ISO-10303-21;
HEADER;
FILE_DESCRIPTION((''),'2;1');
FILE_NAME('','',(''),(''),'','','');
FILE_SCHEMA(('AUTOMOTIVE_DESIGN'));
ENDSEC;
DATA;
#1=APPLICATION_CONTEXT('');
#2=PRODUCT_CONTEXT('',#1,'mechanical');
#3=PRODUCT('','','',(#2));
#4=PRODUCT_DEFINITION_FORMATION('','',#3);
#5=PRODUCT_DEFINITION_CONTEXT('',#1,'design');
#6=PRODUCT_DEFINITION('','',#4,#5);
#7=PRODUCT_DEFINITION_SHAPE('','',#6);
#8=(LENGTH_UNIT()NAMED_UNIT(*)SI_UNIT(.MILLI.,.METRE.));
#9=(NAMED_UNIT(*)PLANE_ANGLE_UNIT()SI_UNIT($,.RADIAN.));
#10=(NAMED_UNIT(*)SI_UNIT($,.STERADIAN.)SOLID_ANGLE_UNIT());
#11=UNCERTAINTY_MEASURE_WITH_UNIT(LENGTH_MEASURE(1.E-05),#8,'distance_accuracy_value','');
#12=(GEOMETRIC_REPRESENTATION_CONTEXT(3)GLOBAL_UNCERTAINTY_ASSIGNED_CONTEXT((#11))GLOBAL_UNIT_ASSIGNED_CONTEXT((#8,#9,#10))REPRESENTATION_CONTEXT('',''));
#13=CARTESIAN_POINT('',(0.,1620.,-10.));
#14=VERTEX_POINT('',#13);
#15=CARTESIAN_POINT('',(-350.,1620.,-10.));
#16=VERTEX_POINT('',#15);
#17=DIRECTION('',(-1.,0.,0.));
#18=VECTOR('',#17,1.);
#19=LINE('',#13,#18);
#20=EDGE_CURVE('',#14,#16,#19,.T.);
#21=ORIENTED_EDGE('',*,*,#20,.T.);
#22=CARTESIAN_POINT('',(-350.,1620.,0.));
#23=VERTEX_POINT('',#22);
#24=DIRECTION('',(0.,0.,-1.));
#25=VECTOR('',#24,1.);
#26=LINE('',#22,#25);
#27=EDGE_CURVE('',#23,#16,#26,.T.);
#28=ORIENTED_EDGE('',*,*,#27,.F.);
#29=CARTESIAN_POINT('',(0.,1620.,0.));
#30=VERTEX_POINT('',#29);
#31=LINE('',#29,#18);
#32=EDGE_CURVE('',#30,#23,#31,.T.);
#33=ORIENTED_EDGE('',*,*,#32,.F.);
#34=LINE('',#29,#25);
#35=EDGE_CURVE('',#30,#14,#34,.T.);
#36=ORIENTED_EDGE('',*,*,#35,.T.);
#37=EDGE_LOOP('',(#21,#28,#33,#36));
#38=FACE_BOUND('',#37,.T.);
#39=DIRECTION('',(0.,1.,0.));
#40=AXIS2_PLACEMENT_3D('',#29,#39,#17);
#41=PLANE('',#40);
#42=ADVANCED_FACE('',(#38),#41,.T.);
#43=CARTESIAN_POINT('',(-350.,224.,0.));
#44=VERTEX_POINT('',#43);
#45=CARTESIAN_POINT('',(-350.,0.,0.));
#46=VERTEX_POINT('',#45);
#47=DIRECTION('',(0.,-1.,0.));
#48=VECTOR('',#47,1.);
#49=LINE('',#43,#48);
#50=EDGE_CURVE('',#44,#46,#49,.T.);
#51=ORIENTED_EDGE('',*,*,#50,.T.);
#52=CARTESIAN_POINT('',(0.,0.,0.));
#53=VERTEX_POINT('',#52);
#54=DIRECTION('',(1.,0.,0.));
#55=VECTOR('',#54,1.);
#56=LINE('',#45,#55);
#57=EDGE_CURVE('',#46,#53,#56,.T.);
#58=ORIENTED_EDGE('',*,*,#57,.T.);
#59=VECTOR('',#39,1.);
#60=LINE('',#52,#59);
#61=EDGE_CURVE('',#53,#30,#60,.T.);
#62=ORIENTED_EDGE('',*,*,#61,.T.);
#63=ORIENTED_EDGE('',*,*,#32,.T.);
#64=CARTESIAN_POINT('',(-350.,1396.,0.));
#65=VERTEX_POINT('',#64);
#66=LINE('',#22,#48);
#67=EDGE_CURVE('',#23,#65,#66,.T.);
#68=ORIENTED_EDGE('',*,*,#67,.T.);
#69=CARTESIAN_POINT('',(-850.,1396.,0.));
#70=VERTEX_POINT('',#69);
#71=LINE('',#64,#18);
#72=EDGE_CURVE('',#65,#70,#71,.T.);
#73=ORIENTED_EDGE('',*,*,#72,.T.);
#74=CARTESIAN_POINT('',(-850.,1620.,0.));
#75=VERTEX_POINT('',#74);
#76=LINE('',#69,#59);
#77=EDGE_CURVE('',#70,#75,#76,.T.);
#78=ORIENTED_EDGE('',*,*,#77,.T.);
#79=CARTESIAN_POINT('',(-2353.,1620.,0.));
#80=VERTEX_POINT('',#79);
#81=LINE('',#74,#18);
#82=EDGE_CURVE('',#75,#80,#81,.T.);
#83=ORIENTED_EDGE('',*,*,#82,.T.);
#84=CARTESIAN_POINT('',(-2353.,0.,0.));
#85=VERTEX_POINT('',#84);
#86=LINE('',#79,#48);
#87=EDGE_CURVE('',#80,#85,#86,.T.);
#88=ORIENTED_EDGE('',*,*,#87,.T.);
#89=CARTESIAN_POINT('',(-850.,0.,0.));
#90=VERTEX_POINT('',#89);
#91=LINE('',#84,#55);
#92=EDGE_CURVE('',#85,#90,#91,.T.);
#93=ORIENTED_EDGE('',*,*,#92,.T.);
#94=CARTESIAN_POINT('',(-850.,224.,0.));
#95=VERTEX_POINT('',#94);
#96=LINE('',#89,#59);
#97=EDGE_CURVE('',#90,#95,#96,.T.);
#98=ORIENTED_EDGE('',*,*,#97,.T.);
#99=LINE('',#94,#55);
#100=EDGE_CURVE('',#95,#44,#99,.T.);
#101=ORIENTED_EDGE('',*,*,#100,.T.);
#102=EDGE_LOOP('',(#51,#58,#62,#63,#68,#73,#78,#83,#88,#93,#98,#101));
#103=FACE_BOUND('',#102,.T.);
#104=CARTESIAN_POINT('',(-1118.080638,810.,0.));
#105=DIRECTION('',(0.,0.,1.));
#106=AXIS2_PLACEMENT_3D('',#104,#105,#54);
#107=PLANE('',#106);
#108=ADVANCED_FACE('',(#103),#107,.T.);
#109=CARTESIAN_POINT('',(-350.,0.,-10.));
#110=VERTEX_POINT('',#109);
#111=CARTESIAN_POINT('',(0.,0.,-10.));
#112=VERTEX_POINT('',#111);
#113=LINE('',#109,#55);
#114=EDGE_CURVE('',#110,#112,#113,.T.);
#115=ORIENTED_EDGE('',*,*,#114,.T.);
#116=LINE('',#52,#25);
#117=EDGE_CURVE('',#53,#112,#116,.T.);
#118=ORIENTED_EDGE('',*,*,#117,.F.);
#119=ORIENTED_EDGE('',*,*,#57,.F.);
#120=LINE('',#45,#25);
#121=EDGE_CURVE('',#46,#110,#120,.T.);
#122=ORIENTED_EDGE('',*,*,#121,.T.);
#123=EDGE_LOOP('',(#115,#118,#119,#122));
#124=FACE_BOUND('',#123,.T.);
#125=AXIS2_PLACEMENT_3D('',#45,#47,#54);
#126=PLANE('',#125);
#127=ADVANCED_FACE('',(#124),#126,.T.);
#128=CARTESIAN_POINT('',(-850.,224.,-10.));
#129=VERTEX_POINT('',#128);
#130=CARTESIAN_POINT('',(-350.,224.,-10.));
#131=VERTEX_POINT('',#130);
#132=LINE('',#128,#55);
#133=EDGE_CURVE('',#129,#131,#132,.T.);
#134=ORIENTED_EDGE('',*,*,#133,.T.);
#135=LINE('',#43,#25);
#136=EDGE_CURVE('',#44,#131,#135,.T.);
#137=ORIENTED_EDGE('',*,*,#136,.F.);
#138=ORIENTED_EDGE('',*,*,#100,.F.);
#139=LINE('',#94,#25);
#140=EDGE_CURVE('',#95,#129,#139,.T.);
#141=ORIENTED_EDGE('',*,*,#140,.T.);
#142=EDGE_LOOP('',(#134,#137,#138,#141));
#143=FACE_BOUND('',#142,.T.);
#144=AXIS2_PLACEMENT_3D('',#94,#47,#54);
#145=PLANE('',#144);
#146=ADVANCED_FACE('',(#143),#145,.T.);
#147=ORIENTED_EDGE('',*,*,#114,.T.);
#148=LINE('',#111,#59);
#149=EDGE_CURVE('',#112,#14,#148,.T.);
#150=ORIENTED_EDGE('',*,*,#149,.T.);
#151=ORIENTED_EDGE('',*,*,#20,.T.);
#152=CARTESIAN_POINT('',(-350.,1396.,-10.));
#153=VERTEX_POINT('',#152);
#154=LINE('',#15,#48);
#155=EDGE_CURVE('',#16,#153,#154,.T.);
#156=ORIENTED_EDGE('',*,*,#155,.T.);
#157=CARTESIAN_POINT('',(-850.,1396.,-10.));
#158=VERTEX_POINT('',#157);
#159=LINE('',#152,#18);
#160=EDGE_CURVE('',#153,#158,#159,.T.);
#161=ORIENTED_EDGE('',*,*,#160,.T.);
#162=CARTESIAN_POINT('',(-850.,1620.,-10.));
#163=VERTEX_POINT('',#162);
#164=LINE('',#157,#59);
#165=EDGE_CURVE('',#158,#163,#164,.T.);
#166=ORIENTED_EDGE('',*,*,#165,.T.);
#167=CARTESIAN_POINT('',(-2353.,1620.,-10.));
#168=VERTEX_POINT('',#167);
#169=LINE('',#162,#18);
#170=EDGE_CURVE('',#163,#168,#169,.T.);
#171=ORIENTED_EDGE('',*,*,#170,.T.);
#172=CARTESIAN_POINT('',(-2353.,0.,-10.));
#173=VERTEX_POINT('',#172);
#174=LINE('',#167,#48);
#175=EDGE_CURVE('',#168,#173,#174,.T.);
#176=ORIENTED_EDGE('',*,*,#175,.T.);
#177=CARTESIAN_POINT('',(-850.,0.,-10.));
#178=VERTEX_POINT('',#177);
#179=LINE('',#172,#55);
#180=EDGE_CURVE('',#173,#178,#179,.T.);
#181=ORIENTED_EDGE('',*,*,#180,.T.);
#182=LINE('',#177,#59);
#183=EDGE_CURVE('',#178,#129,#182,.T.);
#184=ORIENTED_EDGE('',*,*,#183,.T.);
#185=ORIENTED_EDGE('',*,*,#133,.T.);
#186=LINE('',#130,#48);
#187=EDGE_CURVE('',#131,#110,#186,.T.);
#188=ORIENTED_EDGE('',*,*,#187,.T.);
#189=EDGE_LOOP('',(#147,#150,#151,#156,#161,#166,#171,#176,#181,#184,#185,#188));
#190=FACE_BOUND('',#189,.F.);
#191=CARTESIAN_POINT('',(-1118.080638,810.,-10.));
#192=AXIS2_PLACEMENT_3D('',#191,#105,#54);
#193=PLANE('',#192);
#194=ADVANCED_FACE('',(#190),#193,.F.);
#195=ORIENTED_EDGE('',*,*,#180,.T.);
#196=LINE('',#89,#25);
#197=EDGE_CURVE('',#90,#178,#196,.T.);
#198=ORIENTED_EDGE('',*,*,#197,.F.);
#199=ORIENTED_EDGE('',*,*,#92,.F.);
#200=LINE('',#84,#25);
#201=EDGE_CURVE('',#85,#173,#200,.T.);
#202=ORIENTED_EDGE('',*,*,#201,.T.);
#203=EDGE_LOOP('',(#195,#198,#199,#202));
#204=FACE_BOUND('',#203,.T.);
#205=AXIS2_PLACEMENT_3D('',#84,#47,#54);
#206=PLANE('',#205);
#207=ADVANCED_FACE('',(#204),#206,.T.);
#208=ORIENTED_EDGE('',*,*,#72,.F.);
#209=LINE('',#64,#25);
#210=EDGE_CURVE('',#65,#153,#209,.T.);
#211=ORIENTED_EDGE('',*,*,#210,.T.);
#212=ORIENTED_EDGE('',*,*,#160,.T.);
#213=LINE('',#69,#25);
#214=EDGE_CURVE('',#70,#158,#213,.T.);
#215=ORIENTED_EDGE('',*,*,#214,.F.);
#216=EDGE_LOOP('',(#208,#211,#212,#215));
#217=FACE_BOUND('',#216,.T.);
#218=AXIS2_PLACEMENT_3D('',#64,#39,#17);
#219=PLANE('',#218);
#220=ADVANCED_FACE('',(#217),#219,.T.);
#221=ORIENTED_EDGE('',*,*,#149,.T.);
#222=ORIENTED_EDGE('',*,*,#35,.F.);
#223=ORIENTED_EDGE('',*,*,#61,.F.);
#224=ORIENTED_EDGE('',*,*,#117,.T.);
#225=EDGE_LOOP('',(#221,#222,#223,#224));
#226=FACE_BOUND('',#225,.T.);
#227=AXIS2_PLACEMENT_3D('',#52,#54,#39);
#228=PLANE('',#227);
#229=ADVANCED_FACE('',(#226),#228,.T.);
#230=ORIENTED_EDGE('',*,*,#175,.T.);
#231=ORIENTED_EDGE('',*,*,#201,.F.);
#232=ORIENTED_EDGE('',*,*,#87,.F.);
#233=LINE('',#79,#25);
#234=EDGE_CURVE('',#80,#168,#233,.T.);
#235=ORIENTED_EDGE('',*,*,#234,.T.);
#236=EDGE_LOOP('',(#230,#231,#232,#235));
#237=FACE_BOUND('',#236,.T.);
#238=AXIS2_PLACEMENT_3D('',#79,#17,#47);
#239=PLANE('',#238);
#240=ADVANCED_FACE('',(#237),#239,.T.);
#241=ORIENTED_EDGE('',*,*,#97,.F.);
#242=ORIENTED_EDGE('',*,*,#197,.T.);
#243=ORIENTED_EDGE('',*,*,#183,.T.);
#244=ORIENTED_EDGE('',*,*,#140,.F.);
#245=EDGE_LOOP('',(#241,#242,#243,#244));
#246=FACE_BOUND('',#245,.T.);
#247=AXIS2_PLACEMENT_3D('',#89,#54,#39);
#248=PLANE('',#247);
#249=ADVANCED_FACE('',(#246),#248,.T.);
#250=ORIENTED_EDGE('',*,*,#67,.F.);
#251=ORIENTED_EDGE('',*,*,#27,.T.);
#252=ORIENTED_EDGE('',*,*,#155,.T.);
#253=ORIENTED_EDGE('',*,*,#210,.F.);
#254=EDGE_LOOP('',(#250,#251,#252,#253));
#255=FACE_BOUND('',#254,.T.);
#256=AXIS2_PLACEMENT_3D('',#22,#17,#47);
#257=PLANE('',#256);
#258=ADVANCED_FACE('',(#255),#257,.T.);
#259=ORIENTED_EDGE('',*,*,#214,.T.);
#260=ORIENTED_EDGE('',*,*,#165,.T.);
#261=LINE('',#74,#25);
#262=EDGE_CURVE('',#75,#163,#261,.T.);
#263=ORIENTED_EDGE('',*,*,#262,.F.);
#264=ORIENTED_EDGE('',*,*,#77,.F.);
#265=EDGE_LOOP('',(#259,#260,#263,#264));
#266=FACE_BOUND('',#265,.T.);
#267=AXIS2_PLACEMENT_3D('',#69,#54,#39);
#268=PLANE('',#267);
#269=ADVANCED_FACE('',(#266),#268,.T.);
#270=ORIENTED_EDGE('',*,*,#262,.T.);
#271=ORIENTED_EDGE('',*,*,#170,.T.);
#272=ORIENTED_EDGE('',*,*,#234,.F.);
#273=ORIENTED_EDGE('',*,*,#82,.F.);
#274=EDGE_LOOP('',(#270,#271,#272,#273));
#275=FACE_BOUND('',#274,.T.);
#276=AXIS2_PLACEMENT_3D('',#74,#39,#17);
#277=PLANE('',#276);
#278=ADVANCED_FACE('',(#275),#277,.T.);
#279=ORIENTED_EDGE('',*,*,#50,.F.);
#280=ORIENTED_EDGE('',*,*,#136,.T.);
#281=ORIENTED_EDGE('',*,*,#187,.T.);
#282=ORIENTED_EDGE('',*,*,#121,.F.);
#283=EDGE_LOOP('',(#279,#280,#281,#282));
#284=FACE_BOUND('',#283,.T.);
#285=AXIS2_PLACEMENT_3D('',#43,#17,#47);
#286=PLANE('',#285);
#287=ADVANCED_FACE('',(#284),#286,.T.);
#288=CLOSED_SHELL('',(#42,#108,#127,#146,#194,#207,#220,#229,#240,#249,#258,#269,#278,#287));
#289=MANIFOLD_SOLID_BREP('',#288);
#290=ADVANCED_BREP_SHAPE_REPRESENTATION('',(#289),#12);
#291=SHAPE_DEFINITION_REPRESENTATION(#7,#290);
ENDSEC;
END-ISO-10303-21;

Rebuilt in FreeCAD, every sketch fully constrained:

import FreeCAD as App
import Part
import Sketcher
Q = App.Units.Quantity


def add_polygon(sketch, points):
    """Adds a closed chain of lines whose ends are joined by coincident constraints."""
    first, n = sketch.GeometryCount, len(points)
    for a, b in zip(points, points[1:] + points[:1]):
        sketch.addGeometry(Part.LineSegment(App.Vector(*a, 0), App.Vector(*b, 0)), False)
    for i in range(n):
        sketch.addConstraint(Sketcher.Constraint("Coincident", first + i, 2, first + (i + 1) % n, 1))

doc = App.newDocument("Part")
body = doc.addObject("PartDesign::Body", "Body")

sketch1 = body.newObject("Sketcher::SketchObject", "Sketch")
sketch1.AttachmentSupport = (doc.getObject("XY_Plane"), [""])
sketch1.MapMode = "FlatFace"
add_polygon(sketch1, [(-850, 1620), (-2353, 1620), (-2353, 0), (-850, 0), (-850, 224), (-350, 224), (-350, 0), (0, 0), (0, 1620), (-350, 1620), (-350, 1396), (-850, 1396)])
sketch1.addConstraint([
    Sketcher.Constraint("Horizontal", 0),
    Sketcher.Constraint("Vertical", 1),
    Sketcher.Constraint("Horizontal", 2),
    Sketcher.Constraint("Vertical", 3),
    Sketcher.Constraint("Horizontal", 4),
    Sketcher.Constraint("Vertical", 5),
    Sketcher.Constraint("Horizontal", 6),
    Sketcher.Constraint("Vertical", 7),
    Sketcher.Constraint("Horizontal", 8),
    Sketcher.Constraint("Vertical", 9),
    Sketcher.Constraint("Horizontal", 10),
    Sketcher.Constraint("Vertical", 11),
    Sketcher.Constraint("Coincident", 6, 2, -1, 1),
    Sketcher.Constraint("PointOnObject", 1, 2, -1),
    Sketcher.Constraint("Horizontal", 0, 2, 7, 2),
    Sketcher.Constraint("Vertical", 5, 2, 8, 2),
    Sketcher.Constraint("Vertical", 3, 2, 10, 2),
    Sketcher.Constraint("Equal", 5, 9),
    Sketcher.Constraint("DistanceX", 0, 2, 0, 1, Q("1503 mm")),
    Sketcher.Constraint("DistanceX", 4, 1, 4, 2, Q("500 mm")),
    Sketcher.Constraint("DistanceX", 6, 1, 6, 2, Q("350 mm")),
    Sketcher.Constraint("DistanceY", 1, 2, 1, 1, Q("1620 mm")),
    Sketcher.Constraint("DistanceY", 3, 1, 3, 2, Q("224 mm")),
])
pad1 = body.newObject("PartDesign::Pad", "Pad")
pad1.Profile = sketch1
pad1.Length = 10
pad1.Reversed = True

doc.recompute()
